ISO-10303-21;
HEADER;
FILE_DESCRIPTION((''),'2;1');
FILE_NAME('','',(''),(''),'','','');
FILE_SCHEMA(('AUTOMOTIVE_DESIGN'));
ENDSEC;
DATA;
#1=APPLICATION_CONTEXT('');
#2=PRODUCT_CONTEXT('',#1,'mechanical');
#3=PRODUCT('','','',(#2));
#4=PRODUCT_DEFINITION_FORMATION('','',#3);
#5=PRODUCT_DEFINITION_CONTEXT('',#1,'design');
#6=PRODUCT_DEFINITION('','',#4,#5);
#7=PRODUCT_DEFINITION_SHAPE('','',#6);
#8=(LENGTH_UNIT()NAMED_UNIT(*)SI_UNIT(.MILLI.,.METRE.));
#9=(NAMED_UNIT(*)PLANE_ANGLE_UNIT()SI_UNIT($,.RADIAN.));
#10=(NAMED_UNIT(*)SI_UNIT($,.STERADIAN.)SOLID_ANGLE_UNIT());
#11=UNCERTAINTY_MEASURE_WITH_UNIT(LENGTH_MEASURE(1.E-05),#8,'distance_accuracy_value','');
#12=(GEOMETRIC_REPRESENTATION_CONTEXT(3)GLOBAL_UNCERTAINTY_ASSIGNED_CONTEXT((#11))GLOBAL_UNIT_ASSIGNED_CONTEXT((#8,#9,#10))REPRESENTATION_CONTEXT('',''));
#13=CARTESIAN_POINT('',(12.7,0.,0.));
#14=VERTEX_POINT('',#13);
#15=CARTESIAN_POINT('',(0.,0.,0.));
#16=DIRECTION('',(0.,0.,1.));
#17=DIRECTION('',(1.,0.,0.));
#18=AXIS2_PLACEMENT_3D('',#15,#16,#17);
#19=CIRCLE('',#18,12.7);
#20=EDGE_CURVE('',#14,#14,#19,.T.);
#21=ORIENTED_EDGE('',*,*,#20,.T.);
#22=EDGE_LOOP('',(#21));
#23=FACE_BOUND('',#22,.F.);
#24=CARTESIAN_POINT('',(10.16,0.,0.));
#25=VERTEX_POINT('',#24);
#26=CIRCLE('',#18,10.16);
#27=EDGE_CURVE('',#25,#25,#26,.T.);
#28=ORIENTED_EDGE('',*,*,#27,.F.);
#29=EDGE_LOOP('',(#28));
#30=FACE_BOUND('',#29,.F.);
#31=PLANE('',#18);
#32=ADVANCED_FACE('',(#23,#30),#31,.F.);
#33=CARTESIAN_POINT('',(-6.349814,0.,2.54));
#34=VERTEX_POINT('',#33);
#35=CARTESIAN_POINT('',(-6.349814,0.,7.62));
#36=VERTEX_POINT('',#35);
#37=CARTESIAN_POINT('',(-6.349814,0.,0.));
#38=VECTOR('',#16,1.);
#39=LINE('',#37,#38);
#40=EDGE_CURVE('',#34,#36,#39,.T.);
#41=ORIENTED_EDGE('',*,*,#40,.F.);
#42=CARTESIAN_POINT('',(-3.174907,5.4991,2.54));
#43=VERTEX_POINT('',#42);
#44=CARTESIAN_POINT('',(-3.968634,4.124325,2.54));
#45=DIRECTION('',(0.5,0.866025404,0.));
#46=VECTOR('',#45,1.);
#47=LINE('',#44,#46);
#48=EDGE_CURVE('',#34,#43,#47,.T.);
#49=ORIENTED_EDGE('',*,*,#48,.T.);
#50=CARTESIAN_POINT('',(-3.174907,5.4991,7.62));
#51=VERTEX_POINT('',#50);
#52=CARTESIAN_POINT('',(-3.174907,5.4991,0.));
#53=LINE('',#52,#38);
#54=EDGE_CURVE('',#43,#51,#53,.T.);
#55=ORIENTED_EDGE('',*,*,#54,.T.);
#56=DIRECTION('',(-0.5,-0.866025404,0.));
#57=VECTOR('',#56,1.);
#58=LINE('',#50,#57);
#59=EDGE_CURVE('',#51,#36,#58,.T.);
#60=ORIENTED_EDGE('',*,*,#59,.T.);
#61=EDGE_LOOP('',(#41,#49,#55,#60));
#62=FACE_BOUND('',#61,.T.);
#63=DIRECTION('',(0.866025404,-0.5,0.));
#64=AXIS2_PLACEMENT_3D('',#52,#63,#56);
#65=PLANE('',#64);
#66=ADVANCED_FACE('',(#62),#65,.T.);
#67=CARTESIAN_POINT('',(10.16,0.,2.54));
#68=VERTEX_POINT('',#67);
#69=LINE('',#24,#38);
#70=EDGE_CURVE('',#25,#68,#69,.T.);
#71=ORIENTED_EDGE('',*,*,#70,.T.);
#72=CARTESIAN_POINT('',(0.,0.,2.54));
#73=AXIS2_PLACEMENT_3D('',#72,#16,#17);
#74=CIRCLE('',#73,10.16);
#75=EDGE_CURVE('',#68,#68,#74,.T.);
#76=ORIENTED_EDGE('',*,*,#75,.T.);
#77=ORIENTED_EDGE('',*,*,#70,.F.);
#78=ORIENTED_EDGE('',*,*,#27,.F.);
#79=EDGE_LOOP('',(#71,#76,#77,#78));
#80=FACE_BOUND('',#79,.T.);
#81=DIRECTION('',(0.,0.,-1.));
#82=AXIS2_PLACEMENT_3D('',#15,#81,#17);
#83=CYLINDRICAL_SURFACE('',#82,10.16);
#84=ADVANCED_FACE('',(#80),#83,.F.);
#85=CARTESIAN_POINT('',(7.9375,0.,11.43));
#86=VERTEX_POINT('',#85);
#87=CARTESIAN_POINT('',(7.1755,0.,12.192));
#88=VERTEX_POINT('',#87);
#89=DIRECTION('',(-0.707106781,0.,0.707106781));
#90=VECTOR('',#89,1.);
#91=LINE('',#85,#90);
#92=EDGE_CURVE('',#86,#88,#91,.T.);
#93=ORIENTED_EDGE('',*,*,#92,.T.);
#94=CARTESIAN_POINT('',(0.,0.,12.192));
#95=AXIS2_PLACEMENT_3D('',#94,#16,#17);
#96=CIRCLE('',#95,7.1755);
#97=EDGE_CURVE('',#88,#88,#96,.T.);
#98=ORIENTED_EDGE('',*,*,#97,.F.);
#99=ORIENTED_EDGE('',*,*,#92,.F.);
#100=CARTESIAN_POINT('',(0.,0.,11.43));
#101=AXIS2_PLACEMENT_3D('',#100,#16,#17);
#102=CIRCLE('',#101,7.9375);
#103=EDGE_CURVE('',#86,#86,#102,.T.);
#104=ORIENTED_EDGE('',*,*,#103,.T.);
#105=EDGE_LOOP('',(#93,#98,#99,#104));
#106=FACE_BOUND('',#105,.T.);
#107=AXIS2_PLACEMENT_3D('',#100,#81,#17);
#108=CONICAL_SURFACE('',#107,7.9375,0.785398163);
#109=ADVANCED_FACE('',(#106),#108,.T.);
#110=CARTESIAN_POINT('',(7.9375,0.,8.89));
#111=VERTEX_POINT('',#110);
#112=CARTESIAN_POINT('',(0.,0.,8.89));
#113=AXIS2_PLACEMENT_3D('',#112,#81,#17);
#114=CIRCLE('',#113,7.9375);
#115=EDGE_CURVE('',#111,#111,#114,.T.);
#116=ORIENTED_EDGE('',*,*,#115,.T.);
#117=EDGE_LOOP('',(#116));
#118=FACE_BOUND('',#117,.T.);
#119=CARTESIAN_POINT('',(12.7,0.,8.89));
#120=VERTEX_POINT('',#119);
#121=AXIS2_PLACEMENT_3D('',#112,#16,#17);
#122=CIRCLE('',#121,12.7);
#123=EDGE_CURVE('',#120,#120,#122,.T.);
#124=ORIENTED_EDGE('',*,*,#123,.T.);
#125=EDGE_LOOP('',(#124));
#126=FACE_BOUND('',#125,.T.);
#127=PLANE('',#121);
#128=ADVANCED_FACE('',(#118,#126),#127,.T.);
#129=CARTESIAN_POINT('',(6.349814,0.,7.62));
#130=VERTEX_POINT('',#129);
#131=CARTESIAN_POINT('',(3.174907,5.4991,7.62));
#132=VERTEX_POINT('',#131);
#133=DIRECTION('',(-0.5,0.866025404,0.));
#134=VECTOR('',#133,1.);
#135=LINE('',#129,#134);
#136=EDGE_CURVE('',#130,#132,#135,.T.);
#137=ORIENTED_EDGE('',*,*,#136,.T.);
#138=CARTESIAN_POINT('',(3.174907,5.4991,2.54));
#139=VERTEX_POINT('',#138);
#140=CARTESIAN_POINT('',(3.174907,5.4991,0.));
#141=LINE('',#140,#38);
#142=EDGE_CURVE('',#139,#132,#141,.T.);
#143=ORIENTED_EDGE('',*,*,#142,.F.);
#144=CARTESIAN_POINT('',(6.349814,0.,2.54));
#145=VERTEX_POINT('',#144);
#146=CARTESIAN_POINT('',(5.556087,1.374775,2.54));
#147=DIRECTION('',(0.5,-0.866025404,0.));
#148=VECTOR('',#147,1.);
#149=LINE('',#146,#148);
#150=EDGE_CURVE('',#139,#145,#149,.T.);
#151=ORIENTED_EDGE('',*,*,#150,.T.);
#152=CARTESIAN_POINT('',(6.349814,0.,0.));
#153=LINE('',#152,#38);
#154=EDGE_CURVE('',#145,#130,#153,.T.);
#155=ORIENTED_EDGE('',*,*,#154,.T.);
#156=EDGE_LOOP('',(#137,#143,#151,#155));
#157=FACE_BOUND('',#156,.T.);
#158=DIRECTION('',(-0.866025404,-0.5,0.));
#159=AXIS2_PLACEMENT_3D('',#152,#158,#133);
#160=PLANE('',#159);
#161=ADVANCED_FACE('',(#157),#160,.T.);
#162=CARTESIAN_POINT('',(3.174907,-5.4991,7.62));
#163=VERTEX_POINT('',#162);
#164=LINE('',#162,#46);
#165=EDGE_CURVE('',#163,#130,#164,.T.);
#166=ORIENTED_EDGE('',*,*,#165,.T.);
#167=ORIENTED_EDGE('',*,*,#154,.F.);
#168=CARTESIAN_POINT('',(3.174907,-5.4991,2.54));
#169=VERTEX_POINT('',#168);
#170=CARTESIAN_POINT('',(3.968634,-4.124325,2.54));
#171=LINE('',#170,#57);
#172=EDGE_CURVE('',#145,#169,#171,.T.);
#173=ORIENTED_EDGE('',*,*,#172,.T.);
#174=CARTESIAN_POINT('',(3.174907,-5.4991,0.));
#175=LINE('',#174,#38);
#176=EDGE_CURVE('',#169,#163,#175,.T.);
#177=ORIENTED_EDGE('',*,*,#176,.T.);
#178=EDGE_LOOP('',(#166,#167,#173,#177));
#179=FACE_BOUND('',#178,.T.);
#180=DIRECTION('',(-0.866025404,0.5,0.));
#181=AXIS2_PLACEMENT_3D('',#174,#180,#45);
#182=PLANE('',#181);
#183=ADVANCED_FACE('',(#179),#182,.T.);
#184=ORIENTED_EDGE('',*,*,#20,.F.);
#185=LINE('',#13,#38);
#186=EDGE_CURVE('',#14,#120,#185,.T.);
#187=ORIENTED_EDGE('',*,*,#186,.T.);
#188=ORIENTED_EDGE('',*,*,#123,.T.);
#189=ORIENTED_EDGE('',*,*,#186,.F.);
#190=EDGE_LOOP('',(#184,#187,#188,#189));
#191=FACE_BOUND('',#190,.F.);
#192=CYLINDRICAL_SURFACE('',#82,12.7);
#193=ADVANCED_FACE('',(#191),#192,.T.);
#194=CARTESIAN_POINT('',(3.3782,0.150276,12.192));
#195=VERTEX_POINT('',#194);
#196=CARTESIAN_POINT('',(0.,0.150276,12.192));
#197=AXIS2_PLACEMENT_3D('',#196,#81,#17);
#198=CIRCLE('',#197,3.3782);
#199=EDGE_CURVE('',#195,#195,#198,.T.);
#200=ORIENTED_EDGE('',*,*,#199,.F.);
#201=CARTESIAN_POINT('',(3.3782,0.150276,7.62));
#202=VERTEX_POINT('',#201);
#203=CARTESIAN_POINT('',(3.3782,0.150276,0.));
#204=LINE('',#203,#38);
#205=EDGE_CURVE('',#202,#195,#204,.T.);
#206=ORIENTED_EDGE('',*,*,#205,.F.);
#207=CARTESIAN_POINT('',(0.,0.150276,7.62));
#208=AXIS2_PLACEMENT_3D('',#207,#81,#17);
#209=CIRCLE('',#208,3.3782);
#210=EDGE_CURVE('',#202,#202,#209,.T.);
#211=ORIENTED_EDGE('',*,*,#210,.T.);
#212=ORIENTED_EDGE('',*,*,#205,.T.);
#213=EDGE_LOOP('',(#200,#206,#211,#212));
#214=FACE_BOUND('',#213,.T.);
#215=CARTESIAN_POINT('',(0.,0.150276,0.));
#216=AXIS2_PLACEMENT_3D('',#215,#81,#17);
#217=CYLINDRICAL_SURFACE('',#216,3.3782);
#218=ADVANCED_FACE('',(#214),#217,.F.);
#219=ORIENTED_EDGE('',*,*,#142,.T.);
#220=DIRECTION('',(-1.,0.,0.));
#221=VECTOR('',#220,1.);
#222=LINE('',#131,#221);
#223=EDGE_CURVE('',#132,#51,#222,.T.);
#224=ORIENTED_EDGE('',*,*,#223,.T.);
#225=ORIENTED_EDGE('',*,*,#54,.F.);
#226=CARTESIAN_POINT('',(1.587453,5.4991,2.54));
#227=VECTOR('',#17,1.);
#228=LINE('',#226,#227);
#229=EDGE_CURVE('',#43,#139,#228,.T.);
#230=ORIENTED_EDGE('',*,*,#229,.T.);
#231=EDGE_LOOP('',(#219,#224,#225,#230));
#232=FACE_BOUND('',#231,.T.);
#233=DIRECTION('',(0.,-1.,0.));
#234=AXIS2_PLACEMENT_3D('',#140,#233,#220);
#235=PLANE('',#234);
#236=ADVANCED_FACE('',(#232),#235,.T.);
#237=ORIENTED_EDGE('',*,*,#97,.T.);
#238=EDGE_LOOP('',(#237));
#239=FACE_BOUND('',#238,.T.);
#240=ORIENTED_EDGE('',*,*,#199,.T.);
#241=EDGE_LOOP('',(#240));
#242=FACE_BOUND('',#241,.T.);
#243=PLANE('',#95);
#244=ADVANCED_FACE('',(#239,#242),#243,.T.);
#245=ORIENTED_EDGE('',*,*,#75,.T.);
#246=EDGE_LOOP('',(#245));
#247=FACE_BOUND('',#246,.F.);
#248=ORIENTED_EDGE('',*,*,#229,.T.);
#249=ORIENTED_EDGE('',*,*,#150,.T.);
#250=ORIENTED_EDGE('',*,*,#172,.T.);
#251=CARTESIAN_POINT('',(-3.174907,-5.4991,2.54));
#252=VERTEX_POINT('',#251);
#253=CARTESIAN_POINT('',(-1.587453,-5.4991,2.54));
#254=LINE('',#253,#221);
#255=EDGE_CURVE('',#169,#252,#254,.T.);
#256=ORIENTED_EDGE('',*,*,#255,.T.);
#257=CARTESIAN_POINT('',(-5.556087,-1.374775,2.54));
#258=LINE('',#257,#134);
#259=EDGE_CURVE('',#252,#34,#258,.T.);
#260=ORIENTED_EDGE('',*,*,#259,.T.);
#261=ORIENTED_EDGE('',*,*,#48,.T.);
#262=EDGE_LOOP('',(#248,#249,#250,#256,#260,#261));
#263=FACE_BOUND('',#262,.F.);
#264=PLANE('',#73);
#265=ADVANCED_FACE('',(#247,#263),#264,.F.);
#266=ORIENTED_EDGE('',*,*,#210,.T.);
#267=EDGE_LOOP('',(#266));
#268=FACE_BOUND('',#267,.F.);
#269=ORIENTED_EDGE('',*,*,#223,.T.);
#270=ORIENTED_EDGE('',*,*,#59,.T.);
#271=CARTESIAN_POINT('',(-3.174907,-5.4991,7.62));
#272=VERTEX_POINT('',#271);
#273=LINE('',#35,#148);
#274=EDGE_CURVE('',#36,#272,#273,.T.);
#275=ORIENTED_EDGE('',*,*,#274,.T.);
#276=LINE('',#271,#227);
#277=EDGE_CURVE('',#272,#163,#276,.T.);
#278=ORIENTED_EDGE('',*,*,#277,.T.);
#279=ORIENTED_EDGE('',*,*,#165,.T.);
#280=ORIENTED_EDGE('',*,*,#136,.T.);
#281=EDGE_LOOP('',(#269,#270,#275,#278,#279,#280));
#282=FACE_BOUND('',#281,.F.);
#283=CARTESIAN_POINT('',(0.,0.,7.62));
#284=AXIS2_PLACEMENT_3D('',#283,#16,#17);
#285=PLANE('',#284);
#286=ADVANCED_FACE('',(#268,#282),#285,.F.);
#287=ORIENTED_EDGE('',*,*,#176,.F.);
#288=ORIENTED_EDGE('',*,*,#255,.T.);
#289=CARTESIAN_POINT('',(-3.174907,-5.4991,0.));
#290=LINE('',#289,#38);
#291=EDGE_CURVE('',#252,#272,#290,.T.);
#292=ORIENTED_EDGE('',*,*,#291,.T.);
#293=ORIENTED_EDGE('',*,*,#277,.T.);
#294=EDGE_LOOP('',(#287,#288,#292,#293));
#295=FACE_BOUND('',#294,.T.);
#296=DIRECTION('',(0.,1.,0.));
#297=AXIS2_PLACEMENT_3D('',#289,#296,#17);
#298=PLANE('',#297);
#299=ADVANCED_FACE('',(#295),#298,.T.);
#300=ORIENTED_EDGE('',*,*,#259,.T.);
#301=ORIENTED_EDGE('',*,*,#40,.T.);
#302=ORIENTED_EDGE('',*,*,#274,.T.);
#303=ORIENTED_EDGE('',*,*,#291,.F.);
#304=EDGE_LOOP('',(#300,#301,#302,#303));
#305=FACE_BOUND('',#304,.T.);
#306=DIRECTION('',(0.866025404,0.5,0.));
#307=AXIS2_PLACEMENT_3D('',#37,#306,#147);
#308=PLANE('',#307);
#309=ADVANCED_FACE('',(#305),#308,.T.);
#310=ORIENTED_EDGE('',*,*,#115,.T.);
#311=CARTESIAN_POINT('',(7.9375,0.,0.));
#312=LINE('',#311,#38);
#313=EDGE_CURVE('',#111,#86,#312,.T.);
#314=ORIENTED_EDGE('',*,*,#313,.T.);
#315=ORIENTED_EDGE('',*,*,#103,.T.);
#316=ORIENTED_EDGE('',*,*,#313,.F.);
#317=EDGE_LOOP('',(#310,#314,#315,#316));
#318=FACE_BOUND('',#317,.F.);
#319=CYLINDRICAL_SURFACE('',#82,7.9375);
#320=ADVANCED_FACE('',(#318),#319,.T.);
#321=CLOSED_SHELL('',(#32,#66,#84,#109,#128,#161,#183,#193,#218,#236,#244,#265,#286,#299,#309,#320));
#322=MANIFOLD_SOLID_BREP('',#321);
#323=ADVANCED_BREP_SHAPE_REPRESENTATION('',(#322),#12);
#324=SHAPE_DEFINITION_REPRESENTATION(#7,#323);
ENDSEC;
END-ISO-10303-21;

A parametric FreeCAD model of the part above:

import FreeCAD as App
import Part
import Sketcher
from FreeCAD import Vector
Q = App.Units.Quantity


def edges_at(feature, points):
    """Names of the edges that pass closest to the given points."""
    edges = feature.Shape.Edges
    near = lambda p: min(range(len(edges)), key=lambda i: edges[i].distToShape(Part.Vertex(*p))[0])
    return sorted({f"Edge{near(p) + 1}" for p in points})


def add_polygon(sketch, points):
    """Adds a closed chain of lines whose ends are joined by coincident constraints."""
    first, n = sketch.GeometryCount, len(points)
    for a, b in zip(points, points[1:] + points[:1]):
        sketch.addGeometry(Part.LineSegment(App.Vector(*a, 0), App.Vector(*b, 0)), False)
    for i in range(n):
        sketch.addConstraint(Sketcher.Constraint("Coincident", first + i, 2, first + (i + 1) % n, 1))

doc = App.newDocument("Part")
body = doc.addObject("PartDesign::Body", "Body")

# Sketch on XY plane
sketch1 = body.newObject("Sketcher::SketchObject", "Sketch")
sketch1.AttachmentSupport = (doc.getObject("XY_Plane"), [""])
sketch1.MapMode = "FlatFace"
sketch1.addGeometry(Part.Circle(Vector(0, 0, 0), Vector(0, 0, 1), 13), False)
sketch1.addConstraint([
    Sketcher.Constraint("Coincident", 0, 3, -1, 1),
    Sketcher.Constraint("Diameter", 0, Q("1 in")),
])
pad1 = body.newObject("PartDesign::Pad", "Pad")
pad1.Profile = sketch1
pad1.Length = Q("0.35 in")

# Sketch on XY plane
sketch2 = body.newObject("Sketcher::SketchObject", "Sketch001")
sketch2.AttachmentSupport = (doc.getObject("XY_Plane"), [""])
sketch2.MapMode = "FlatFace"
sketch2.addGeometry(Part.Circle(Vector(0, 0, 0), Vector(0, 0, 1), 8), False)
sketch2.addConstraint([
    Sketcher.Constraint("Coincident", 0, 3, -1, 1),
    Sketcher.Constraint("Diameter", 0, Q("0.625 in")),
])
pad2 = body.newObject("PartDesign::Pad", "Pad001")
pad2.Profile = sketch2
pad2.Length = Q("0.48 in")

# Sketch on XY plane
sketch3 = body.newObject("Sketcher::SketchObject", "Sketch002")
sketch3.AttachmentSupport = (doc.getObject("XY_Plane"), [""])
sketch3.MapMode = "FlatFace"
sketch3.addGeometry(Part.Circle(Vector(0, 0.2, 0), Vector(0, 0, 1), 3.4), False)
sketch3.addConstraint([
    Sketcher.Constraint("PointOnObject", 0, 3, -2),
    Sketcher.Constraint("Diameter", 0, Q("0.266 in")),
    Sketcher.Constraint("DistanceY", -1, 1, 0, 3, 0.150276),
])
pocket1 = body.newObject("PartDesign::Pocket", "Pocket")
pocket1.Profile = sketch3
pocket1.Length = Q("1 in")
pocket1.Reversed = True

# Sketch on XY plane
sketch4 = body.newObject("Sketcher::SketchObject", "Sketch003")
sketch4.AttachmentSupport = (doc.getObject("XY_Plane"), [""])
sketch4.MapMode = "FlatFace"
sketch4.addGeometry([
    Part.Circle(Vector(0, 0, 0), Vector(0, 0, 1), 10.2),
    Part.Circle(Vector(0, 0.2, 0), Vector(0, 0, 1), 3.4),
], False)
sketch4.addConstraint([
    Sketcher.Constraint("Coincident", 0, 3, -1, 1),
    Sketcher.Constraint("PointOnObject", 1, 3, -2),
    Sketcher.Constraint("Diameter", 0, Q("0.8 in")),
    Sketcher.Constraint("Diameter", 1, Q("0.266 in")),
    Sketcher.Constraint("DistanceY", -1, 1, 1, 3, 0.150276),
])
pocket2 = body.newObject("PartDesign::Pocket", "Pocket001")
pocket2.Profile = sketch4
pocket2.Length = Q("0.1 in")
pocket2.Reversed = True
doc.recompute()

chamfer = body.newObject("PartDesign::Chamfer", "Chamfer")
chamfer.Base = (pocket2, edges_at(pocket2, [(-7.938, 0, 12.192)]))
chamfer.Size = Q("0.03 in")

# Sketch on XY plane
sketch5 = body.newObject("Sketcher::SketchObject", "Sketch004")
sketch5.AttachmentSupport = (doc.getObject("XY_Plane"), [""])
sketch5.MapMode = "FlatFace"
add_polygon(sketch5, [(3, 5), (-3, 5), (-6, 0), (-3, -5), (3, -5), (6, 0)])  # lines 0-5
sketch5.addConstraint([
    Sketcher.Constraint("Horizontal", 0),
    Sketcher.Constraint("Horizontal", 3),
    Sketcher.Constraint("Symmetric", 0, 2, 3, 2, -1, 1),
    Sketcher.Constraint("Symmetric", 1, 2, 4, 2, -1, 1),
    Sketcher.Constraint("PointOnObject", 1, 2, -1),
    Sketcher.Constraint("Parallel", 2, 5),
    Sketcher.Constraint("Vertical", 0, 2, 2, 2),
    Sketcher.Constraint("Angle", 1, Q("-120 deg")),
    Sketcher.Constraint("DistanceY", 2, 2, 0, 2, Q("0.433 in")),
    Sketcher.Constraint("DistanceX", 0, 2, 0, 1, 6.349814),
])
pocket3 = body.newObject("PartDesign::Pocket", "Pocket002")
pocket3.Profile = sketch5
pocket3.Length = Q("0.3 in")
pocket3.Reversed = True

doc.recompute()
